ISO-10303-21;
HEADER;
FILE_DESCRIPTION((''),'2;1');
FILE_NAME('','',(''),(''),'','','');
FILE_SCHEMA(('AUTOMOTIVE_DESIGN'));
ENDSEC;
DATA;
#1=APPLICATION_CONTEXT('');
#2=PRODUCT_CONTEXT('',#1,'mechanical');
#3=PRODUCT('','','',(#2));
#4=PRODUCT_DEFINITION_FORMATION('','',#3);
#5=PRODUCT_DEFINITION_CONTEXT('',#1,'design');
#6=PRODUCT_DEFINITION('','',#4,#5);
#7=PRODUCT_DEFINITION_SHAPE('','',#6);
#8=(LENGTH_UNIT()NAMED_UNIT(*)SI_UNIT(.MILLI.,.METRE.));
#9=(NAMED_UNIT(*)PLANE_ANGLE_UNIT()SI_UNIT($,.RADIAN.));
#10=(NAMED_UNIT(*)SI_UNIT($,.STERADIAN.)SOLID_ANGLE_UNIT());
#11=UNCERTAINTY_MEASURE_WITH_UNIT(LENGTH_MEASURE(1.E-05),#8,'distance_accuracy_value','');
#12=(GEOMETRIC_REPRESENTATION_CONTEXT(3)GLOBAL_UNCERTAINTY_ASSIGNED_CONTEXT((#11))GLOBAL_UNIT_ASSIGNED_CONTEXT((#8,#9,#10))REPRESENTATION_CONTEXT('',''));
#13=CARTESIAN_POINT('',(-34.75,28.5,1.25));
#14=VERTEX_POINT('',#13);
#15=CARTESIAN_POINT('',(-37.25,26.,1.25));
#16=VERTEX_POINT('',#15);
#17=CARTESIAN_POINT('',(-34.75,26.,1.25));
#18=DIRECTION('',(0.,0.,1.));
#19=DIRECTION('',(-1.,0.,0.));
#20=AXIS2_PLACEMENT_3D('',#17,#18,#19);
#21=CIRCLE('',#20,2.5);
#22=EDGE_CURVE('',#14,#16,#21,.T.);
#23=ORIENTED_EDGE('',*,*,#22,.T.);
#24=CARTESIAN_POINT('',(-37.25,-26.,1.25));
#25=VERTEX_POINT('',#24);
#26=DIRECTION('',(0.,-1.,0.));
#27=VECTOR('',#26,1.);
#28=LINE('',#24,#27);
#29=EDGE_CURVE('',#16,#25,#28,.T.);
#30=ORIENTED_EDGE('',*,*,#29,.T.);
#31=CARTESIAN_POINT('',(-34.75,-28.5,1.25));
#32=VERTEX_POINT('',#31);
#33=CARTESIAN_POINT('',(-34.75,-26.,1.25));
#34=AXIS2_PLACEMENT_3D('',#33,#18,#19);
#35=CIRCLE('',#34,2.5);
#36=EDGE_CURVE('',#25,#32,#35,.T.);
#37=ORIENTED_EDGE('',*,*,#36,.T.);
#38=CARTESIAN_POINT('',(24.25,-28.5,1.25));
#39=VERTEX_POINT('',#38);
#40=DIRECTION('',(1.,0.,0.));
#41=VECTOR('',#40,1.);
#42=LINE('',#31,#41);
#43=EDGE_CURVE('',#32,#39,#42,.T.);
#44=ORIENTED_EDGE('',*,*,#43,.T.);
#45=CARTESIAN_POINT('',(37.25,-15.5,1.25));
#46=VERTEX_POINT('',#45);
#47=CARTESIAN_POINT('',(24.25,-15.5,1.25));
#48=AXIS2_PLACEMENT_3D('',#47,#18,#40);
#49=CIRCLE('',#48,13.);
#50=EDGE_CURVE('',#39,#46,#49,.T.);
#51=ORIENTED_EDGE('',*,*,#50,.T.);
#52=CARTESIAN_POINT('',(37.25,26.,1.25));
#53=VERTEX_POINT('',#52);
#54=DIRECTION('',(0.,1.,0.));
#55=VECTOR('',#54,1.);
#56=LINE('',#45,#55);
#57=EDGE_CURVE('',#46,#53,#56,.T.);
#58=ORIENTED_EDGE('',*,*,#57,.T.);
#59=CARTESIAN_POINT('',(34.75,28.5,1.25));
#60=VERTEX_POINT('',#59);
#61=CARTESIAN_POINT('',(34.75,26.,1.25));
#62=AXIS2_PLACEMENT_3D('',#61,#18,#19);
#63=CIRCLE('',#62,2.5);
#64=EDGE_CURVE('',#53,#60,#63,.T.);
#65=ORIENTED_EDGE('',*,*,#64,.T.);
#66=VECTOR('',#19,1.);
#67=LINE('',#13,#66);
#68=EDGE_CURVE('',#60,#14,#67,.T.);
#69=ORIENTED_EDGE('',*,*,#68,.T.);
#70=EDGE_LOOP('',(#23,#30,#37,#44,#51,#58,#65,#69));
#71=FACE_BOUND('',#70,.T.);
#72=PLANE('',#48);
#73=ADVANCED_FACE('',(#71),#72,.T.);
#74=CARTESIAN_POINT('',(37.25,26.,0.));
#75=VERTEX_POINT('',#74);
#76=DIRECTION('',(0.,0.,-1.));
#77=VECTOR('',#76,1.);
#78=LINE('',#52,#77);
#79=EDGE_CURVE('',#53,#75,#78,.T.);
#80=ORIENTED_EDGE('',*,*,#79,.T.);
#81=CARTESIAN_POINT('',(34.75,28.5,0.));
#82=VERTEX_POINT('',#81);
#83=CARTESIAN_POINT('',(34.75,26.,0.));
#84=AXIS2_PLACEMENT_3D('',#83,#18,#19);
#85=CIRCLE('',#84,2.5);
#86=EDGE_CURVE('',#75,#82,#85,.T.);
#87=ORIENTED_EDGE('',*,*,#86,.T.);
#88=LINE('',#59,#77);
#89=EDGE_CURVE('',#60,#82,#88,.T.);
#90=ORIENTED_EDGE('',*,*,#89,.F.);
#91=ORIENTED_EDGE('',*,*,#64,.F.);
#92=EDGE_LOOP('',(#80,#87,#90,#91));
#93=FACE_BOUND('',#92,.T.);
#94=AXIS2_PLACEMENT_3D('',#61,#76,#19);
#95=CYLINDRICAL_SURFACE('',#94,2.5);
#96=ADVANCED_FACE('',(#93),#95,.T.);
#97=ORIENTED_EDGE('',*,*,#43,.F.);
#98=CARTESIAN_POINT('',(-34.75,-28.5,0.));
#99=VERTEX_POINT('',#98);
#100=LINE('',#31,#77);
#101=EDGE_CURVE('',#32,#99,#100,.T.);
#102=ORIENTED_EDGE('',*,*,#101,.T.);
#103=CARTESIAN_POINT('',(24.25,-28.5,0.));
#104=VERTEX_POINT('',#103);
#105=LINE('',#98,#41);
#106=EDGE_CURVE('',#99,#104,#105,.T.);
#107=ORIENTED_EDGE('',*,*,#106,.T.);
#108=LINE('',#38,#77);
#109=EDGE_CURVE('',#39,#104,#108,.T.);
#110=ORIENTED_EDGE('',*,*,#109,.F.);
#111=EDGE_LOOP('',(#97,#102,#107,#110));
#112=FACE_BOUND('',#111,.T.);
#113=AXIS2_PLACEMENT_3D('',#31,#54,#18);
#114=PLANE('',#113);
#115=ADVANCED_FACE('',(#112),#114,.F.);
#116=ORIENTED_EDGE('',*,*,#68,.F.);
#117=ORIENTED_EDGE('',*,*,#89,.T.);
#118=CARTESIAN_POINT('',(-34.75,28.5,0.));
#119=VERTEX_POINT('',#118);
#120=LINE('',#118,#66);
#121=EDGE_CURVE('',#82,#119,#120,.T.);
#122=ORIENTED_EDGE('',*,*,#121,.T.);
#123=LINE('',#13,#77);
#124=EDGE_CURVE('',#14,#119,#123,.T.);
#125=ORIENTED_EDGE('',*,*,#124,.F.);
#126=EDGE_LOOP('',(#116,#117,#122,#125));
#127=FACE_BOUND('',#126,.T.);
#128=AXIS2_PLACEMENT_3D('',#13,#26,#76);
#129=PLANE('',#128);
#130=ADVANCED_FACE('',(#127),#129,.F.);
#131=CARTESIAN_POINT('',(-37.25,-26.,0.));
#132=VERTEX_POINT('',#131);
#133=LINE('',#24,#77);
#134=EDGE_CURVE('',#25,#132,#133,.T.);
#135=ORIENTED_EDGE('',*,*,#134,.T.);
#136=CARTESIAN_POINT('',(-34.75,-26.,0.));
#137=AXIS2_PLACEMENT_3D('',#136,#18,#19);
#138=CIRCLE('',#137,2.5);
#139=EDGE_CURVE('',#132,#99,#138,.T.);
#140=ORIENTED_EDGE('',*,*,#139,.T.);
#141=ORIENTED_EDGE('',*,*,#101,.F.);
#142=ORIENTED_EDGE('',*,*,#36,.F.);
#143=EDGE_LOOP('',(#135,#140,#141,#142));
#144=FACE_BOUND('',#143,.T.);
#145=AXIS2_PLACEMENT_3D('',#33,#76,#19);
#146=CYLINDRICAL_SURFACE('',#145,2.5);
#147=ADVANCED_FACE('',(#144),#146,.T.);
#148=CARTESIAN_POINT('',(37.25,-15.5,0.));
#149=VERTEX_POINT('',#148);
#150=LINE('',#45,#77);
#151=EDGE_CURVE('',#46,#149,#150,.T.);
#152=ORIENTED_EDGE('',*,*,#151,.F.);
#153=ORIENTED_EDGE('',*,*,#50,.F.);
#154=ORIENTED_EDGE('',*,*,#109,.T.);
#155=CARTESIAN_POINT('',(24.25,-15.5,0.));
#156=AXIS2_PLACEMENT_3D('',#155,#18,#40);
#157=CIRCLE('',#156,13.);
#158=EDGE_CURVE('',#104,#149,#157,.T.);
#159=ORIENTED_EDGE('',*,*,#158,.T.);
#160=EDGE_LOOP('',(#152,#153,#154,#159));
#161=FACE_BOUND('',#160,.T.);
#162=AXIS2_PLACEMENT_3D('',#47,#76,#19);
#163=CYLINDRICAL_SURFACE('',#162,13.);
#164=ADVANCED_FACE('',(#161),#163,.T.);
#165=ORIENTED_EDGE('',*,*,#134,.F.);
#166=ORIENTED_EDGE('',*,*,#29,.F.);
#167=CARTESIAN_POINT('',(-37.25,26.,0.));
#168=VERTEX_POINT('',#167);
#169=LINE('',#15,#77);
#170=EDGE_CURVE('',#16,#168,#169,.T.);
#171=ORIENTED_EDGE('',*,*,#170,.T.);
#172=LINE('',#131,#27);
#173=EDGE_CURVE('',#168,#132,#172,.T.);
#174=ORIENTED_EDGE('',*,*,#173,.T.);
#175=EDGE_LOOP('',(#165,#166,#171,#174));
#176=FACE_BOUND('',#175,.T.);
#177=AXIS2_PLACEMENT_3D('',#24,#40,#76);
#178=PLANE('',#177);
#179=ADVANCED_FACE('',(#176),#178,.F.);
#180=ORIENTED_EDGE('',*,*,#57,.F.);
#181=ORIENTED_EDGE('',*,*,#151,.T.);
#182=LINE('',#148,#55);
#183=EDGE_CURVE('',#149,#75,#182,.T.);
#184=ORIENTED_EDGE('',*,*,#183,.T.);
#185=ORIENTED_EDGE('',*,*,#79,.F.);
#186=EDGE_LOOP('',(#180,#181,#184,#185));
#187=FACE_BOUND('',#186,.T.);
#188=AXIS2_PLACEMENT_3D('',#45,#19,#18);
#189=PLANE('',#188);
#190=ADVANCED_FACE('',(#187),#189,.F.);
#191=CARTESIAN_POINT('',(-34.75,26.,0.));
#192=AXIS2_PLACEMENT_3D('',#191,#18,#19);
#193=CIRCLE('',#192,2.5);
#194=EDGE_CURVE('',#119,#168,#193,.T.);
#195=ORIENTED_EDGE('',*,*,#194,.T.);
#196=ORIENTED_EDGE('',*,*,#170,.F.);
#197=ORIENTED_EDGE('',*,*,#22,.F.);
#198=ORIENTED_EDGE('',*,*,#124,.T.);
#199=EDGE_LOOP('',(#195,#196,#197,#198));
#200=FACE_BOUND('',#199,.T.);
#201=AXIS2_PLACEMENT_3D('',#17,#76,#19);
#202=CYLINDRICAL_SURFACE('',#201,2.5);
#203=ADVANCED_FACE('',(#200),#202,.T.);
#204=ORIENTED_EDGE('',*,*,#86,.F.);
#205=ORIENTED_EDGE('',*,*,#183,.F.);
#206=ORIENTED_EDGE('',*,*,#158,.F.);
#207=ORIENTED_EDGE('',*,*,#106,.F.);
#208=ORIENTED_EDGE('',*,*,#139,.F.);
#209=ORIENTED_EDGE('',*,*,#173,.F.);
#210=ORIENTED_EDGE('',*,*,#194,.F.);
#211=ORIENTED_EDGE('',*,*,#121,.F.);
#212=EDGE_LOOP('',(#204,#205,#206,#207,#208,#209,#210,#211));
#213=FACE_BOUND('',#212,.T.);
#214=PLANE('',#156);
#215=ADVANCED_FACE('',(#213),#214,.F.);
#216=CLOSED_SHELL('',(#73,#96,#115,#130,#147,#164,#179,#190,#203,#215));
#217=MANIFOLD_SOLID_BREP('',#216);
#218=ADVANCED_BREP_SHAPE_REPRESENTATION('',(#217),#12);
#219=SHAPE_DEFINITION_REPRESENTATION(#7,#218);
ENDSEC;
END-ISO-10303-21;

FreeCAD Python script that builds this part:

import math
import FreeCAD as App
import Part
import Sketcher
from FreeCAD import Vector
Q = App.Units.Quantity

doc = App.newDocument("Part")
body = doc.addObject("PartDesign::Body", "Body")

sketch1 = body.newObject("Sketcher::SketchObject", "Sketch")
sketch1.AttachmentSupport = (doc.getObject("XY_Plane"), [""])
sketch1.MapMode = "FlatFace"
sketch1.addGeometry([
    Part.LineSegment(Vector(-34.8, -28.5, 0), Vector(24.2, -28.5, 0)),
    Part.ArcOfCircle(Part.Circle(Vector(24.2, -15.5, 0), Vector(0, 0, 1), 13), math.radians(-90), math.radians(0)),
    Part.LineSegment(Vector(37.2, -15.5, 0), Vector(37.2, 26, 0)),
    Part.ArcOfCircle(Part.Circle(Vector(34.8, 26, 0), Vector(0, 0, 1), 2.5), math.radians(0), math.radians(90)),
    Part.LineSegment(Vector(34.8, 28.5, 0), Vector(-34.8, 28.5, 0)),
    Part.ArcOfCircle(Part.Circle(Vector(-34.8, 26, 0), Vector(0, 0, 1), 2.5), math.radians(90), math.radians(180)),
    Part.LineSegment(Vector(-37.2, 26, 0), Vector(-37.2, -26, 0)),
    Part.ArcOfCircle(Part.Circle(Vector(-34.8, -26, 0), Vector(0, 0, 1), 2.5), math.radians(180), math.radians(270)),
], False)
sketch1.addConstraint([
    Sketcher.Constraint("Tangent", 0, 2, 1, 1),
    Sketcher.Constraint("Tangent", 1, 2, 2, 1),
    Sketcher.Constraint("Tangent", 2, 2, 3, 1),
    Sketcher.Constraint("Tangent", 3, 2, 4, 1),
    Sketcher.Constraint("Tangent", 4, 2, 5, 1),
    Sketcher.Constraint("Tangent", 5, 2, 6, 1),
    Sketcher.Constraint("Tangent", 6, 2, 7, 1),
    Sketcher.Constraint("Tangent", 7, 2, 0, 1),
    Sketcher.Constraint("Horizontal", 0),
    Sketcher.Constraint("Vertical", 2),
    Sketcher.Constraint("Horizontal", 4),
    Sketcher.Constraint("Vertical", 6),
    Sketcher.Constraint("Equal", 3, 5),
    Sketcher.Constraint("Equal", 5, 7),
    Sketcher.Constraint("Symmetric", 3, 3, 7, 3, -1, 1),
    Sketcher.Constraint("Radius", 1, Q("13 mm")),
    Sketcher.Constraint("Radius", 3, Q("2.5 mm")),
    Sketcher.Constraint("DistanceX", 0, 1, 0, 2, Q("59 mm")),
    Sketcher.Constraint("DistanceY", 6, 2, 6, 1, Q("52 mm")),
])
pad1 = body.newObject("PartDesign::Pad", "Pad")
pad1.Profile = sketch1
pad1.Length = 1.25

doc.recompute()
